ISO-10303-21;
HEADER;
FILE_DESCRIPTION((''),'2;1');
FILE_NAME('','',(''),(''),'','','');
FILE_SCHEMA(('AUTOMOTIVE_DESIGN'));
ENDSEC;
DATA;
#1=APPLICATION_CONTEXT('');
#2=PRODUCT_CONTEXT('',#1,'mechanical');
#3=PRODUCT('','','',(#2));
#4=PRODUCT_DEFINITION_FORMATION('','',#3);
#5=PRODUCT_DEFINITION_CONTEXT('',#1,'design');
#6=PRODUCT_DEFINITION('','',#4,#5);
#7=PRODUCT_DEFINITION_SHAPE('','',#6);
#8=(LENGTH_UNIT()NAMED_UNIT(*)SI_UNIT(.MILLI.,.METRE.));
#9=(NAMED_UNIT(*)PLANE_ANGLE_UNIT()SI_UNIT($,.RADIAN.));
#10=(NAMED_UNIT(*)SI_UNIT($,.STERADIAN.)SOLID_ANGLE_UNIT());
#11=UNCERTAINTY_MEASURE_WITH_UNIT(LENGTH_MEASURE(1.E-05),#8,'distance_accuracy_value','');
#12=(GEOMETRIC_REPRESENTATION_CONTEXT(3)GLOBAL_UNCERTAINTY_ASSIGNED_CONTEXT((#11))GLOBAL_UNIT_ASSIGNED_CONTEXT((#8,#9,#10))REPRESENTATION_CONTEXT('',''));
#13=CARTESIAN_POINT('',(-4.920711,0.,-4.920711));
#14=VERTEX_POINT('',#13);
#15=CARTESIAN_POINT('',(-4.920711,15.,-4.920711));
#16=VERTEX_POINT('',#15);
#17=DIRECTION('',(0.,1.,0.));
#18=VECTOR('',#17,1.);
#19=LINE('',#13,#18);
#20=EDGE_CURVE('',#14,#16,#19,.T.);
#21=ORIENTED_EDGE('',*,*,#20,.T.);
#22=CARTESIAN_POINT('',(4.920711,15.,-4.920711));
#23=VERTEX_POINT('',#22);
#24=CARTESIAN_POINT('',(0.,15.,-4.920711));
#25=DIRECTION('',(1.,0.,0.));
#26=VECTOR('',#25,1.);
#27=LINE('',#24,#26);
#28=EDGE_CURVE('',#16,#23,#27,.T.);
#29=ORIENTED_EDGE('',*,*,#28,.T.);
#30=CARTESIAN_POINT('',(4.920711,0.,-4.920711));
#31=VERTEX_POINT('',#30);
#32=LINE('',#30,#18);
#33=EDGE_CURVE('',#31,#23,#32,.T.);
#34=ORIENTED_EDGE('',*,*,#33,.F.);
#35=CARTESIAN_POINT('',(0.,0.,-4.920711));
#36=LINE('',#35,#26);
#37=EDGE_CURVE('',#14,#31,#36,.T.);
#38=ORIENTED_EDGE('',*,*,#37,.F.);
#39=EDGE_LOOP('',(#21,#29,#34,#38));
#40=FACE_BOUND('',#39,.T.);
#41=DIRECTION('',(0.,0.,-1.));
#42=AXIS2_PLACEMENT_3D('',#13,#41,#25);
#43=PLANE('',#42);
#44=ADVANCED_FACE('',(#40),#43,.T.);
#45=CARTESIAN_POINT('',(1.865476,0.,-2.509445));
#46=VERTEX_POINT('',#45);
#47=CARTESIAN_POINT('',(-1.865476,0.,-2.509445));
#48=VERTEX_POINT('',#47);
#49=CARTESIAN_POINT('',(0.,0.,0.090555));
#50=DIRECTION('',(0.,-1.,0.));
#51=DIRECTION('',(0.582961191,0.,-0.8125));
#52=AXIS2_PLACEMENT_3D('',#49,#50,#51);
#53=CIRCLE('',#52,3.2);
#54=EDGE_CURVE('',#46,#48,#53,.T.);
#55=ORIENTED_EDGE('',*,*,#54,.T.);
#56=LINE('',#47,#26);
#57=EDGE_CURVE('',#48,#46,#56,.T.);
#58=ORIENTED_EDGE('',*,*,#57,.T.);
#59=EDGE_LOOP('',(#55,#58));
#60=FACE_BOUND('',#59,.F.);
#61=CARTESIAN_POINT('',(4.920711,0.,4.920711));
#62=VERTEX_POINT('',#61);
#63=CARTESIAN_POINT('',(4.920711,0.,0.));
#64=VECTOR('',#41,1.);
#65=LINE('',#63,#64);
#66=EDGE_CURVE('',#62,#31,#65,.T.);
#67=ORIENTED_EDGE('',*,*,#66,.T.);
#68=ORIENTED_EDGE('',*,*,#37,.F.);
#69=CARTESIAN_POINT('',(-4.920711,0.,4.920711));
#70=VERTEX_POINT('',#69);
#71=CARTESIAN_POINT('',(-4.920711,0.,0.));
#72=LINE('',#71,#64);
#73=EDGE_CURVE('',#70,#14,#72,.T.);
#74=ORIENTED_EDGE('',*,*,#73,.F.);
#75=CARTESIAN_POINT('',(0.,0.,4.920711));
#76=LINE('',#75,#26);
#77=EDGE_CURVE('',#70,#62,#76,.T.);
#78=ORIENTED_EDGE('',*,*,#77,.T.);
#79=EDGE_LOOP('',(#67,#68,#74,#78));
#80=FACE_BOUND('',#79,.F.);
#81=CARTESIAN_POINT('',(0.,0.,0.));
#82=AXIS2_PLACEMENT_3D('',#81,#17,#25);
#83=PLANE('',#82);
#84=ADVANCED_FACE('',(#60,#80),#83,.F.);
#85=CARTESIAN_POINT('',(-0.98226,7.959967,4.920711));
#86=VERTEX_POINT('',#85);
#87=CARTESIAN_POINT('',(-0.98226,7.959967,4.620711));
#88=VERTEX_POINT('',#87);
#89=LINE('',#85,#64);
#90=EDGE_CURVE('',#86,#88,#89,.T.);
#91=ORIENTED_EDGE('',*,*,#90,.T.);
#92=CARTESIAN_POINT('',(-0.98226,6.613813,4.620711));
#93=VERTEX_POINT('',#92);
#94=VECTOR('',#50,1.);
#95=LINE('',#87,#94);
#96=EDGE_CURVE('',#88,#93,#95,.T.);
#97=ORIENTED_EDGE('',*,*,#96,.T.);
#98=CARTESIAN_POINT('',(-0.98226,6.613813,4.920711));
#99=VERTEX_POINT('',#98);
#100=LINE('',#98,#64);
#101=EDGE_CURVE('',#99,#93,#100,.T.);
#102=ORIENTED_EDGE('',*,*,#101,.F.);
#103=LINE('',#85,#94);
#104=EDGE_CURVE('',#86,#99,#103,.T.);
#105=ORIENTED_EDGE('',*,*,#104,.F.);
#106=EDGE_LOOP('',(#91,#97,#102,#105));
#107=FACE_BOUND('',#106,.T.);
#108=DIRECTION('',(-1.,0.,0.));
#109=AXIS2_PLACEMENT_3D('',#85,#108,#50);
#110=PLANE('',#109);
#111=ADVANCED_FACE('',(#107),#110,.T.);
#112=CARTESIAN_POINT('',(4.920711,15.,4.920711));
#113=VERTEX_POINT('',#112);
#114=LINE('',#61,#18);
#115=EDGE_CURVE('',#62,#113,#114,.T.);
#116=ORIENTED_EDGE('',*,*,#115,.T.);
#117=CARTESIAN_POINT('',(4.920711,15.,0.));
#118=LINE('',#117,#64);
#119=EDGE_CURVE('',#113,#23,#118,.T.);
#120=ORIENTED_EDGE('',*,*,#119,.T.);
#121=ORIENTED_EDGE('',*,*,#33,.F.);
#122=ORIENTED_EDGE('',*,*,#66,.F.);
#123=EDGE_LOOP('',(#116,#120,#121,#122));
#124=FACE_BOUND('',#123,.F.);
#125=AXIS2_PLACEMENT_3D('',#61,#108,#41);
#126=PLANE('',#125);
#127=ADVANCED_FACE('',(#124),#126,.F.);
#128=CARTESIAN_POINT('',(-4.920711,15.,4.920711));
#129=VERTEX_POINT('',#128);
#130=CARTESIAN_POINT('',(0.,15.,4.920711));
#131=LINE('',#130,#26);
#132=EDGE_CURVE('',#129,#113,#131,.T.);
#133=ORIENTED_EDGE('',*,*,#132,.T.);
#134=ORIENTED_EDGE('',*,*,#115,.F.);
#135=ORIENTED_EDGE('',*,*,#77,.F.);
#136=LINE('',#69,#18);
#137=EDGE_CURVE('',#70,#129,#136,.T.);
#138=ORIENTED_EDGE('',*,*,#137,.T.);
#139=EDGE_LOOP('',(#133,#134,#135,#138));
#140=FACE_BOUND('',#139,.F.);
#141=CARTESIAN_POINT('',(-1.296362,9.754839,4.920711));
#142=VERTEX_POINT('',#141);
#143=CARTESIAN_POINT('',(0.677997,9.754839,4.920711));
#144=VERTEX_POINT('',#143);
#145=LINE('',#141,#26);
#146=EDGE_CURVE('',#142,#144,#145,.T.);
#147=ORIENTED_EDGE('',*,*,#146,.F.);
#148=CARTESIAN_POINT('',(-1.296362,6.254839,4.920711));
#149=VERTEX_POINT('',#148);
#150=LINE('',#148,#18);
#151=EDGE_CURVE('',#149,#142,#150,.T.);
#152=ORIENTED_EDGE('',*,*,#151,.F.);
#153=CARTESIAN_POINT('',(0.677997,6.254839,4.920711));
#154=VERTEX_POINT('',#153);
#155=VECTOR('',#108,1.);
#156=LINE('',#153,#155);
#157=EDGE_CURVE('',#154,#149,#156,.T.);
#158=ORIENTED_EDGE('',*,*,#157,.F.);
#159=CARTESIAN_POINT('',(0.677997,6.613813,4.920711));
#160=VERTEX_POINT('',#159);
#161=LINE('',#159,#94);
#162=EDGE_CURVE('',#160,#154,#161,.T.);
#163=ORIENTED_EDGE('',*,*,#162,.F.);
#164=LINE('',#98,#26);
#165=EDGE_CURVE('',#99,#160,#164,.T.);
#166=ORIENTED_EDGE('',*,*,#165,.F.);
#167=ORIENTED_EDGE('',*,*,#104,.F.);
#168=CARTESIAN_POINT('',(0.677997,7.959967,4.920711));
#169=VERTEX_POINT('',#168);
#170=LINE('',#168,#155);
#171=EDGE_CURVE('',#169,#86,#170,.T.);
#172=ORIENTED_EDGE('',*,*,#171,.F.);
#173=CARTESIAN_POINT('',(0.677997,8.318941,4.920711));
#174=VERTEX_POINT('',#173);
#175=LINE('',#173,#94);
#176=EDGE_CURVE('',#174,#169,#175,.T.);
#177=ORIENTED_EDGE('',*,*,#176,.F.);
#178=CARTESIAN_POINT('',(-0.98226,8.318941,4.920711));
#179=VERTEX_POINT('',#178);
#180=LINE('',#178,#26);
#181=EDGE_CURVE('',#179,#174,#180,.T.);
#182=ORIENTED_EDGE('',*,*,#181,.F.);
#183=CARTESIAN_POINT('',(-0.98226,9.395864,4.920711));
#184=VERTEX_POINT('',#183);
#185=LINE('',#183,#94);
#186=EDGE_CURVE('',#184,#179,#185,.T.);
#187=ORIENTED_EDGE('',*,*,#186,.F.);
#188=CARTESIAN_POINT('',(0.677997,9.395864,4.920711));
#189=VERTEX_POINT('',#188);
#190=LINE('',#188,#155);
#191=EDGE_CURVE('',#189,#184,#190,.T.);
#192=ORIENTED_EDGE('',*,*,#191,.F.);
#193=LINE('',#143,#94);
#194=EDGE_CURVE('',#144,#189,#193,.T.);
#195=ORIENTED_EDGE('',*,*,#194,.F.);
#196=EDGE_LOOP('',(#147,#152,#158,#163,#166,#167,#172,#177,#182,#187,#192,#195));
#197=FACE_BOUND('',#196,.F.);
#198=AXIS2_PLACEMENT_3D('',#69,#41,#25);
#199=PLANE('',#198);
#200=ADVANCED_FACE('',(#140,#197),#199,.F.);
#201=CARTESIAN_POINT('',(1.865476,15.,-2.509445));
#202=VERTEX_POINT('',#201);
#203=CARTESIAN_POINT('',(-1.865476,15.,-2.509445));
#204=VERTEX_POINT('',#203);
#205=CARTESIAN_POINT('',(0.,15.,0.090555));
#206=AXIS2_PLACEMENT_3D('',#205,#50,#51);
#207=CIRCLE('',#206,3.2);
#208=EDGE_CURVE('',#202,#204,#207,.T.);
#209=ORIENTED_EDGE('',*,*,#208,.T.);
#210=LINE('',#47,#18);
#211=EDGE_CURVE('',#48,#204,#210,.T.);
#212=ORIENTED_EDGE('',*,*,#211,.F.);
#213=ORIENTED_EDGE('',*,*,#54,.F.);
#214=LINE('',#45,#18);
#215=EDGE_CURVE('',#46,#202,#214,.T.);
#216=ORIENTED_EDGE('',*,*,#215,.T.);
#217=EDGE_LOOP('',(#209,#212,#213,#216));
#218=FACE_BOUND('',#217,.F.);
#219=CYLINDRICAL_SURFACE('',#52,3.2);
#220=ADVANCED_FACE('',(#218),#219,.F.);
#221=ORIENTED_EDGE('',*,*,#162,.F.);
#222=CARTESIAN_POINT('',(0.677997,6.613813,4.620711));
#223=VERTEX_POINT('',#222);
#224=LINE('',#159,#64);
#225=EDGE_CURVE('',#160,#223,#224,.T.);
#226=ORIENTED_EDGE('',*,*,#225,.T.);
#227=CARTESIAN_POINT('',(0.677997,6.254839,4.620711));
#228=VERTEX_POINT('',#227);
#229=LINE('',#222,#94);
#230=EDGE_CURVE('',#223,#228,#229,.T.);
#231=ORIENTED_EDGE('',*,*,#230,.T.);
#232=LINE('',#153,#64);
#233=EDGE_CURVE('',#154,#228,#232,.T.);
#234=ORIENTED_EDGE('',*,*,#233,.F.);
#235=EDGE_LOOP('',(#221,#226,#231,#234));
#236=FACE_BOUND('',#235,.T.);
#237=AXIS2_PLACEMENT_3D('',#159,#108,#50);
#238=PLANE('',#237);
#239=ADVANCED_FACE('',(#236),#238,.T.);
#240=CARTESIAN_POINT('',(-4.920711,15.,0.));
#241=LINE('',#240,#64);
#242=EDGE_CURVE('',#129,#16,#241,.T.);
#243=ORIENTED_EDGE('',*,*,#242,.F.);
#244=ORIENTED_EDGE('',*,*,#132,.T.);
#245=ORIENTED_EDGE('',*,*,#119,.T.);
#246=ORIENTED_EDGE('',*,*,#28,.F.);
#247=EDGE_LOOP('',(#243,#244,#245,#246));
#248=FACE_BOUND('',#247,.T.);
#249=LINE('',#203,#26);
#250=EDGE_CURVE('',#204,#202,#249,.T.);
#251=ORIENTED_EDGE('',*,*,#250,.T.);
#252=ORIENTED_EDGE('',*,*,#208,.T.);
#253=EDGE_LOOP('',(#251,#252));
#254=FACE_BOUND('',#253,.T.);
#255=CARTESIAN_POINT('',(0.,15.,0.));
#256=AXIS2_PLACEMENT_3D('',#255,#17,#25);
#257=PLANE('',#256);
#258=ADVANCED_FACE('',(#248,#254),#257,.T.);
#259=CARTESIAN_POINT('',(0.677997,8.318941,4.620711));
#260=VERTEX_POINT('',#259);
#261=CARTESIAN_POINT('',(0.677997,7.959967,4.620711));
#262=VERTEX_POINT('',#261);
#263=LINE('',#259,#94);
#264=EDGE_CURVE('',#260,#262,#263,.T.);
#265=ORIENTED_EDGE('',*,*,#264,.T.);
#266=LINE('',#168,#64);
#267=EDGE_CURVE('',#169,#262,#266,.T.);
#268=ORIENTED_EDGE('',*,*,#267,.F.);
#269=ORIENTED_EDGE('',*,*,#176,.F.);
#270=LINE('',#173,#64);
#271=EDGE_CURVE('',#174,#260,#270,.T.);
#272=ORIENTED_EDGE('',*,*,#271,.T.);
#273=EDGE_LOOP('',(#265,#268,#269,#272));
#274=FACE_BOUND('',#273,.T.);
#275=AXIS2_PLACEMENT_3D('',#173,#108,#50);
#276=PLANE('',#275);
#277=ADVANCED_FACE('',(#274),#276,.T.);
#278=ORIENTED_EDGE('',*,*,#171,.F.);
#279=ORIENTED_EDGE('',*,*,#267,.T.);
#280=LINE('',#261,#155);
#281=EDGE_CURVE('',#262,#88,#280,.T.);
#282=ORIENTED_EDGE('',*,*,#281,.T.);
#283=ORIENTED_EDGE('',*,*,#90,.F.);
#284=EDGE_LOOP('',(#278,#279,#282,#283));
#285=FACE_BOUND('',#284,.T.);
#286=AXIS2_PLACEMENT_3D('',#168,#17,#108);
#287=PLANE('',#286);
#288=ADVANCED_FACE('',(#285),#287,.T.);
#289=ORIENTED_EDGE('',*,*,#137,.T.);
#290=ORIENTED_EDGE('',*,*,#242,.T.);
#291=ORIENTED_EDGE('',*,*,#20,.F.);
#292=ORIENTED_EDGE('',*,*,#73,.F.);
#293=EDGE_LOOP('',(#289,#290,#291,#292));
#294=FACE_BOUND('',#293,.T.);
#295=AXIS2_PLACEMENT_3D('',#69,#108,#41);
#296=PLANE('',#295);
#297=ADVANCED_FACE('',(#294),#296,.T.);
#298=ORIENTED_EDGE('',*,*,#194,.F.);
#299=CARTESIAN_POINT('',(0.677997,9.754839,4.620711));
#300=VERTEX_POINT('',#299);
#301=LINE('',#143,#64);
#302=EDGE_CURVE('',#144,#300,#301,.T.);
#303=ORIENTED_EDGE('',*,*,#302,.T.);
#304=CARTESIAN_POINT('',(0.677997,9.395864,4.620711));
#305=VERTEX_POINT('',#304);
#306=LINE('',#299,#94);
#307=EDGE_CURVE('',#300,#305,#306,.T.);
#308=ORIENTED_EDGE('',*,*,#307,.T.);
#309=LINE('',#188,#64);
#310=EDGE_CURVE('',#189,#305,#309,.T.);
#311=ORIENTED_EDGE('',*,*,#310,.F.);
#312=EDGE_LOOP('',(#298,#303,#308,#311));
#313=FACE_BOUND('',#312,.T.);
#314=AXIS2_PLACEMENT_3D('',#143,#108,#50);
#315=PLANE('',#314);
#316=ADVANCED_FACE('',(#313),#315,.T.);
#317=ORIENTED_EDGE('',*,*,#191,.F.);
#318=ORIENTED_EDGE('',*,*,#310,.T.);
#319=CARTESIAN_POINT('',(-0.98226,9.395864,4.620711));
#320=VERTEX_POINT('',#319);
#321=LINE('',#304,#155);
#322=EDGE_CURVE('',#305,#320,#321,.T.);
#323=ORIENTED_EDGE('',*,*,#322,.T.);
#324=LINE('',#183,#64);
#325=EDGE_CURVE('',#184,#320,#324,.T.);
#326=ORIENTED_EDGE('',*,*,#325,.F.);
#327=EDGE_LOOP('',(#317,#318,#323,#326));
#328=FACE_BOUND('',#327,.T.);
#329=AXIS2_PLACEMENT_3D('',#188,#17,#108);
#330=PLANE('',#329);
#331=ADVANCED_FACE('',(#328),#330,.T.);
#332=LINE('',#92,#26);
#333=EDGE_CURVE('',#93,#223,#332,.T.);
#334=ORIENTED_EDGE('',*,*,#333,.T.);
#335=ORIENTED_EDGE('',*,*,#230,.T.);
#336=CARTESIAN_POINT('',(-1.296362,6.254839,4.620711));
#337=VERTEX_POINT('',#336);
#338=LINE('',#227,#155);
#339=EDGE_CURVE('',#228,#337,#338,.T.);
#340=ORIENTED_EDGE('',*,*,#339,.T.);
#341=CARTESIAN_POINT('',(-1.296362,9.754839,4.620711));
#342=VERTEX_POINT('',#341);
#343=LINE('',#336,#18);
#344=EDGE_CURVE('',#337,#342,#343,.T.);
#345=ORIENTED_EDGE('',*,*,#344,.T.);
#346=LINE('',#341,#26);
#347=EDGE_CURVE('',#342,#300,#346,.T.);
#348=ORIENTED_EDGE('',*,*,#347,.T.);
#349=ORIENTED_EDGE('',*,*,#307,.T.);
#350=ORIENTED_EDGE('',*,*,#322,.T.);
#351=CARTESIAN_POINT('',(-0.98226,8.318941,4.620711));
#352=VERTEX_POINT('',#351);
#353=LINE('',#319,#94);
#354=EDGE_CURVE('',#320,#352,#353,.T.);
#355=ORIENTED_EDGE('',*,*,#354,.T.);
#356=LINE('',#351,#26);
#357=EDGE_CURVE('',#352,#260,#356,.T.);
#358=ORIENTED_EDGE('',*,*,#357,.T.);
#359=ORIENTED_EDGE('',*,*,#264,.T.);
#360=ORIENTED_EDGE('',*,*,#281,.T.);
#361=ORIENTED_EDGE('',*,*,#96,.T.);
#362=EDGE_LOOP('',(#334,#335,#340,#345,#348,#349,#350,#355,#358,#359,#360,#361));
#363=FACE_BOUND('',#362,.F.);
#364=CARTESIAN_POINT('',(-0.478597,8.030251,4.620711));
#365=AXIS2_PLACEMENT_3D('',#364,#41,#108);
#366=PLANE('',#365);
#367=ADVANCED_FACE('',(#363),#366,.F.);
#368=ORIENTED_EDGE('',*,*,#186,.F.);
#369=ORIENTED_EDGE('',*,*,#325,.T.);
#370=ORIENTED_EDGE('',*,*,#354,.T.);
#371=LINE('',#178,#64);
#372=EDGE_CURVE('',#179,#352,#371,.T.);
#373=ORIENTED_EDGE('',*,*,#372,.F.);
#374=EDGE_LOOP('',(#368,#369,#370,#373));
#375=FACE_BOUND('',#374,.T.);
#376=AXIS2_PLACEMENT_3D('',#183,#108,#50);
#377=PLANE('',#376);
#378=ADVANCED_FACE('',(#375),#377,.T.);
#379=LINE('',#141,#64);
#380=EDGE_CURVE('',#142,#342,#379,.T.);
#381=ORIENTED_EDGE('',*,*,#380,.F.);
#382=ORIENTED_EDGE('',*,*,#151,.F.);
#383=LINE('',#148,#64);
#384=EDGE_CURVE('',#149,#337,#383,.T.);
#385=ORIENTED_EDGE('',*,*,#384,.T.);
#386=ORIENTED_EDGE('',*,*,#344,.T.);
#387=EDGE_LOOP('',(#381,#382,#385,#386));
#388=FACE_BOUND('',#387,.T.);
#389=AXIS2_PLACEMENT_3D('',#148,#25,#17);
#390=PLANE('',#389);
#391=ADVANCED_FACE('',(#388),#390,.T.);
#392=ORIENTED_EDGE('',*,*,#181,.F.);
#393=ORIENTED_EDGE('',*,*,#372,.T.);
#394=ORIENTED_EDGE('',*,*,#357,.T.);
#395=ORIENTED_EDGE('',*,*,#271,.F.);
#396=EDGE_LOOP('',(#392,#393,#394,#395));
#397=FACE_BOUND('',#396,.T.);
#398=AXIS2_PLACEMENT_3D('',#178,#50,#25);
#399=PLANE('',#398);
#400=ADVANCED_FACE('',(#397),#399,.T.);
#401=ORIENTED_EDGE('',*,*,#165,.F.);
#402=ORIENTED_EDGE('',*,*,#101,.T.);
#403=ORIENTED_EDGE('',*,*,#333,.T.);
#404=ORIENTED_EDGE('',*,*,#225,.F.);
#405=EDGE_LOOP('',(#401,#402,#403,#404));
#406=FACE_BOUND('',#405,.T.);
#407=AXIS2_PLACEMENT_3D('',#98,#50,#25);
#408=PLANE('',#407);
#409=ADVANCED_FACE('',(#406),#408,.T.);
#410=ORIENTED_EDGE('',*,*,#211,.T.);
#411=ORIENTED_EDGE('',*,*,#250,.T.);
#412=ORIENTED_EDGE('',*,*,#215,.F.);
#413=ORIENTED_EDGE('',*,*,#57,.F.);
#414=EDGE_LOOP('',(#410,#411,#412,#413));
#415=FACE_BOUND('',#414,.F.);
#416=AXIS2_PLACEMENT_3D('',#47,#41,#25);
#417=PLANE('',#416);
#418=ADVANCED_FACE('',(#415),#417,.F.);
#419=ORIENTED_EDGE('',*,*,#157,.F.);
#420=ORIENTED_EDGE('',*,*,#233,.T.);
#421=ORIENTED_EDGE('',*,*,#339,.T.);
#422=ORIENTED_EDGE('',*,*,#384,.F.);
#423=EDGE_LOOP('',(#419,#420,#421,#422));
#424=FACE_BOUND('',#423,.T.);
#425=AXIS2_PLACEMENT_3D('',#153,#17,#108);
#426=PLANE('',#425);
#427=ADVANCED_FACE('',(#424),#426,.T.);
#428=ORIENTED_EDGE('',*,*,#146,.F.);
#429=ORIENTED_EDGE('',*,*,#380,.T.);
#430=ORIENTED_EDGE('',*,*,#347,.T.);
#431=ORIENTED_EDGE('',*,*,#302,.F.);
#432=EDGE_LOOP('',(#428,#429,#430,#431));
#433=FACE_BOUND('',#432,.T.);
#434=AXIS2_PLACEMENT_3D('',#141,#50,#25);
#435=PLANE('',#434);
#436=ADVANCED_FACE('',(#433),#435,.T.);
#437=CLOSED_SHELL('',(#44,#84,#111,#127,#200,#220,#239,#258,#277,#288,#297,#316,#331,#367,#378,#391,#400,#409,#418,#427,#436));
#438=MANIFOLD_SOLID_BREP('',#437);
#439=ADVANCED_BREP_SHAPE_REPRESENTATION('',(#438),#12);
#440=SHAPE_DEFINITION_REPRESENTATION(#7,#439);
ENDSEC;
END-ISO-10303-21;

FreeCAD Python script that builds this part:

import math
import FreeCAD as App
import Part
import Sketcher

V = App.Vector
Q = App.Units.Quantity


def add_polygon(sketch, points):
    """Adds a closed chain of lines whose ends are joined by coincident constraints."""
    first, n = sketch.GeometryCount, len(points)
    for a, b in zip(points, points[1:] + points[:1]):
        sketch.addGeometry(Part.LineSegment(App.Vector(*a, 0), App.Vector(*b, 0)), False)
    for i in range(n):
        sketch.addConstraint(Sketcher.Constraint("Coincident", first + i, 2, first + (i + 1) % n, 1))

doc = App.newDocument("Part")
body = doc.addObject("PartDesign::Body", "Body")

sketch1 = body.newObject("Sketcher::SketchObject", "Sketch")
sketch1.AttachmentSupport = (doc.getObject("XZ_Plane"), [""])
sketch1.MapMode = "FlatFace"
add_polygon(sketch1, [(-4.9, -4.9), (-4.9, 4.9), (4.9, 4.9), (4.9, -4.9)])
sketch1.addGeometry(Part.ArcOfCircle(Part.Circle(V(0, 0.1, 0), V(0, 0, 1), 3.2), math.radians(-54), math.radians(234)), False)
sketch1.addGeometry(Part.LineSegment(V(-1.9, -2.5, 0), V(1.9, -2.5, 0)), False)
sketch1.addConstraint(Sketcher.Constraint("Coincident", 4, 1, 5, 2))
sketch1.addConstraint(Sketcher.Constraint("Coincident", 5, 1, 4, 2))
sketch1.addConstraint(Sketcher.Constraint("Vertical", 0))
sketch1.addConstraint(Sketcher.Constraint("Horizontal", 1))
sketch1.addConstraint(Sketcher.Constraint("Vertical", 2))
sketch1.addConstraint(Sketcher.Constraint("Horizontal", 3))
sketch1.addConstraint(Sketcher.Constraint("Horizontal", 5))
sketch1.addConstraint(Sketcher.Constraint("Symmetric", 0, 2, 2, 2, -1, 1))
sketch1.addConstraint(Sketcher.Constraint("PointOnObject", 4, 3, -2))
sketch1.addConstraint(Sketcher.Constraint("Equal", 3, 0))
sketch1.addConstraint(Sketcher.Constraint("Radius", 4, Q("3.2 mm")))
sketch1.addConstraint(Sketcher.Constraint("DistanceY", 4, 1, 4, 3, Q("2.6 mm")))
sketch1.addConstraint(Sketcher.Constraint("DistanceX", 1, 1, 1, 2, Q("9.841423 mm")))
sketch1.addConstraint(Sketcher.Constraint("DistanceY", -1, 1, 4, 3, Q("0.090555 mm")))
pad1 = body.newObject("PartDesign::Pad", "Pad")
pad1.Profile = sketch1
pad1.Length = 15
pad1.Reversed = True

sketch2 = body.newObject("Sketcher::SketchObject", "Sketch001")
sketch2.AttachmentSupport = (doc.getObject("XY_Plane"), [""])
sketch2.MapMode = "FlatFace"
sketch2.AttachmentOffset = App.Placement(V(0, 0, 4.920711), App.Rotation())
add_polygon(sketch2, [(0.68, 9.75), (-1.3, 9.75), (-1.3, 6.25), (0.68, 6.25), (0.68, 6.61), (-0.98, 6.61), (-0.98, 7.96), (0.68, 7.96), (0.68, 8.32), (-0.98, 8.32), (-0.98, 9.4), (0.68, 9.4)])
sketch2.addConstraint(Sketcher.Constraint("Horizontal", 0))
sketch2.addConstraint(Sketcher.Constraint("Vertical", 1))
sketch2.addConstraint(Sketcher.Constraint("Horizontal", 2))
sketch2.addConstraint(Sketcher.Constraint("Vertical", 3))
sketch2.addConstraint(Sketcher.Constraint("Horizontal", 4))
sketch2.addConstraint(Sketcher.Constraint("Vertical", 5))
sketch2.addConstraint(Sketcher.Constraint("Horizontal", 6))
sketch2.addConstraint(Sketcher.Constraint("Vertical", 7))
sketch2.addConstraint(Sketcher.Constraint("Horizontal", 8))
sketch2.addConstraint(Sketcher.Constraint("Vertical", 9))
sketch2.addConstraint(Sketcher.Constraint("Horizontal", 10))
sketch2.addConstraint(Sketcher.Constraint("Vertical", 11))
sketch2.addConstraint(Sketcher.Constraint("Vertical", 3, 2, 6, 2))
sketch2.addConstraint(Sketcher.Constraint("Vertical", 5, 2, 8, 2))
sketch2.addConstraint(Sketcher.Constraint("Vertical", 7, 2, 10, 2))
sketch2.addConstraint(Sketcher.Constraint("Equal", 3, 7))
sketch2.addConstraint(Sketcher.Constraint("Equal", 7, 11))
sketch2.addConstraint(Sketcher.Constraint("DistanceY", 1, 2, 1, 1, Q("3.5 mm")))
sketch2.addConstraint(Sketcher.Constraint("DistanceX", 0, 2, 0, 1, Q("1.974359 mm")))
sketch2.addConstraint(Sketcher.Constraint("DistanceX", 4, 2, 4, 1, Q("1.660256 mm")))
sketch2.addConstraint(Sketcher.Constraint("DistanceY", 3, 1, 3, 2, Q("0.358974 mm")))
sketch2.addConstraint(Sketcher.Constraint("DistanceY", 5, 1, 5, 2, Q("1.346154 mm")))
sketch2.addConstraint(Sketcher.Constraint("DistanceY", -1, 1, 0, 2, Q("9.754839 mm")))
sketch2.addConstraint(Sketcher.Constraint("DistanceX", 4, 2, -1, 1, Q("0.98226 mm")))
pocket1 = body.newObject("PartDesign::Pocket", "Pocket")
pocket1.Profile = sketch2
pocket1.Length = 0.3

doc.recompute()
